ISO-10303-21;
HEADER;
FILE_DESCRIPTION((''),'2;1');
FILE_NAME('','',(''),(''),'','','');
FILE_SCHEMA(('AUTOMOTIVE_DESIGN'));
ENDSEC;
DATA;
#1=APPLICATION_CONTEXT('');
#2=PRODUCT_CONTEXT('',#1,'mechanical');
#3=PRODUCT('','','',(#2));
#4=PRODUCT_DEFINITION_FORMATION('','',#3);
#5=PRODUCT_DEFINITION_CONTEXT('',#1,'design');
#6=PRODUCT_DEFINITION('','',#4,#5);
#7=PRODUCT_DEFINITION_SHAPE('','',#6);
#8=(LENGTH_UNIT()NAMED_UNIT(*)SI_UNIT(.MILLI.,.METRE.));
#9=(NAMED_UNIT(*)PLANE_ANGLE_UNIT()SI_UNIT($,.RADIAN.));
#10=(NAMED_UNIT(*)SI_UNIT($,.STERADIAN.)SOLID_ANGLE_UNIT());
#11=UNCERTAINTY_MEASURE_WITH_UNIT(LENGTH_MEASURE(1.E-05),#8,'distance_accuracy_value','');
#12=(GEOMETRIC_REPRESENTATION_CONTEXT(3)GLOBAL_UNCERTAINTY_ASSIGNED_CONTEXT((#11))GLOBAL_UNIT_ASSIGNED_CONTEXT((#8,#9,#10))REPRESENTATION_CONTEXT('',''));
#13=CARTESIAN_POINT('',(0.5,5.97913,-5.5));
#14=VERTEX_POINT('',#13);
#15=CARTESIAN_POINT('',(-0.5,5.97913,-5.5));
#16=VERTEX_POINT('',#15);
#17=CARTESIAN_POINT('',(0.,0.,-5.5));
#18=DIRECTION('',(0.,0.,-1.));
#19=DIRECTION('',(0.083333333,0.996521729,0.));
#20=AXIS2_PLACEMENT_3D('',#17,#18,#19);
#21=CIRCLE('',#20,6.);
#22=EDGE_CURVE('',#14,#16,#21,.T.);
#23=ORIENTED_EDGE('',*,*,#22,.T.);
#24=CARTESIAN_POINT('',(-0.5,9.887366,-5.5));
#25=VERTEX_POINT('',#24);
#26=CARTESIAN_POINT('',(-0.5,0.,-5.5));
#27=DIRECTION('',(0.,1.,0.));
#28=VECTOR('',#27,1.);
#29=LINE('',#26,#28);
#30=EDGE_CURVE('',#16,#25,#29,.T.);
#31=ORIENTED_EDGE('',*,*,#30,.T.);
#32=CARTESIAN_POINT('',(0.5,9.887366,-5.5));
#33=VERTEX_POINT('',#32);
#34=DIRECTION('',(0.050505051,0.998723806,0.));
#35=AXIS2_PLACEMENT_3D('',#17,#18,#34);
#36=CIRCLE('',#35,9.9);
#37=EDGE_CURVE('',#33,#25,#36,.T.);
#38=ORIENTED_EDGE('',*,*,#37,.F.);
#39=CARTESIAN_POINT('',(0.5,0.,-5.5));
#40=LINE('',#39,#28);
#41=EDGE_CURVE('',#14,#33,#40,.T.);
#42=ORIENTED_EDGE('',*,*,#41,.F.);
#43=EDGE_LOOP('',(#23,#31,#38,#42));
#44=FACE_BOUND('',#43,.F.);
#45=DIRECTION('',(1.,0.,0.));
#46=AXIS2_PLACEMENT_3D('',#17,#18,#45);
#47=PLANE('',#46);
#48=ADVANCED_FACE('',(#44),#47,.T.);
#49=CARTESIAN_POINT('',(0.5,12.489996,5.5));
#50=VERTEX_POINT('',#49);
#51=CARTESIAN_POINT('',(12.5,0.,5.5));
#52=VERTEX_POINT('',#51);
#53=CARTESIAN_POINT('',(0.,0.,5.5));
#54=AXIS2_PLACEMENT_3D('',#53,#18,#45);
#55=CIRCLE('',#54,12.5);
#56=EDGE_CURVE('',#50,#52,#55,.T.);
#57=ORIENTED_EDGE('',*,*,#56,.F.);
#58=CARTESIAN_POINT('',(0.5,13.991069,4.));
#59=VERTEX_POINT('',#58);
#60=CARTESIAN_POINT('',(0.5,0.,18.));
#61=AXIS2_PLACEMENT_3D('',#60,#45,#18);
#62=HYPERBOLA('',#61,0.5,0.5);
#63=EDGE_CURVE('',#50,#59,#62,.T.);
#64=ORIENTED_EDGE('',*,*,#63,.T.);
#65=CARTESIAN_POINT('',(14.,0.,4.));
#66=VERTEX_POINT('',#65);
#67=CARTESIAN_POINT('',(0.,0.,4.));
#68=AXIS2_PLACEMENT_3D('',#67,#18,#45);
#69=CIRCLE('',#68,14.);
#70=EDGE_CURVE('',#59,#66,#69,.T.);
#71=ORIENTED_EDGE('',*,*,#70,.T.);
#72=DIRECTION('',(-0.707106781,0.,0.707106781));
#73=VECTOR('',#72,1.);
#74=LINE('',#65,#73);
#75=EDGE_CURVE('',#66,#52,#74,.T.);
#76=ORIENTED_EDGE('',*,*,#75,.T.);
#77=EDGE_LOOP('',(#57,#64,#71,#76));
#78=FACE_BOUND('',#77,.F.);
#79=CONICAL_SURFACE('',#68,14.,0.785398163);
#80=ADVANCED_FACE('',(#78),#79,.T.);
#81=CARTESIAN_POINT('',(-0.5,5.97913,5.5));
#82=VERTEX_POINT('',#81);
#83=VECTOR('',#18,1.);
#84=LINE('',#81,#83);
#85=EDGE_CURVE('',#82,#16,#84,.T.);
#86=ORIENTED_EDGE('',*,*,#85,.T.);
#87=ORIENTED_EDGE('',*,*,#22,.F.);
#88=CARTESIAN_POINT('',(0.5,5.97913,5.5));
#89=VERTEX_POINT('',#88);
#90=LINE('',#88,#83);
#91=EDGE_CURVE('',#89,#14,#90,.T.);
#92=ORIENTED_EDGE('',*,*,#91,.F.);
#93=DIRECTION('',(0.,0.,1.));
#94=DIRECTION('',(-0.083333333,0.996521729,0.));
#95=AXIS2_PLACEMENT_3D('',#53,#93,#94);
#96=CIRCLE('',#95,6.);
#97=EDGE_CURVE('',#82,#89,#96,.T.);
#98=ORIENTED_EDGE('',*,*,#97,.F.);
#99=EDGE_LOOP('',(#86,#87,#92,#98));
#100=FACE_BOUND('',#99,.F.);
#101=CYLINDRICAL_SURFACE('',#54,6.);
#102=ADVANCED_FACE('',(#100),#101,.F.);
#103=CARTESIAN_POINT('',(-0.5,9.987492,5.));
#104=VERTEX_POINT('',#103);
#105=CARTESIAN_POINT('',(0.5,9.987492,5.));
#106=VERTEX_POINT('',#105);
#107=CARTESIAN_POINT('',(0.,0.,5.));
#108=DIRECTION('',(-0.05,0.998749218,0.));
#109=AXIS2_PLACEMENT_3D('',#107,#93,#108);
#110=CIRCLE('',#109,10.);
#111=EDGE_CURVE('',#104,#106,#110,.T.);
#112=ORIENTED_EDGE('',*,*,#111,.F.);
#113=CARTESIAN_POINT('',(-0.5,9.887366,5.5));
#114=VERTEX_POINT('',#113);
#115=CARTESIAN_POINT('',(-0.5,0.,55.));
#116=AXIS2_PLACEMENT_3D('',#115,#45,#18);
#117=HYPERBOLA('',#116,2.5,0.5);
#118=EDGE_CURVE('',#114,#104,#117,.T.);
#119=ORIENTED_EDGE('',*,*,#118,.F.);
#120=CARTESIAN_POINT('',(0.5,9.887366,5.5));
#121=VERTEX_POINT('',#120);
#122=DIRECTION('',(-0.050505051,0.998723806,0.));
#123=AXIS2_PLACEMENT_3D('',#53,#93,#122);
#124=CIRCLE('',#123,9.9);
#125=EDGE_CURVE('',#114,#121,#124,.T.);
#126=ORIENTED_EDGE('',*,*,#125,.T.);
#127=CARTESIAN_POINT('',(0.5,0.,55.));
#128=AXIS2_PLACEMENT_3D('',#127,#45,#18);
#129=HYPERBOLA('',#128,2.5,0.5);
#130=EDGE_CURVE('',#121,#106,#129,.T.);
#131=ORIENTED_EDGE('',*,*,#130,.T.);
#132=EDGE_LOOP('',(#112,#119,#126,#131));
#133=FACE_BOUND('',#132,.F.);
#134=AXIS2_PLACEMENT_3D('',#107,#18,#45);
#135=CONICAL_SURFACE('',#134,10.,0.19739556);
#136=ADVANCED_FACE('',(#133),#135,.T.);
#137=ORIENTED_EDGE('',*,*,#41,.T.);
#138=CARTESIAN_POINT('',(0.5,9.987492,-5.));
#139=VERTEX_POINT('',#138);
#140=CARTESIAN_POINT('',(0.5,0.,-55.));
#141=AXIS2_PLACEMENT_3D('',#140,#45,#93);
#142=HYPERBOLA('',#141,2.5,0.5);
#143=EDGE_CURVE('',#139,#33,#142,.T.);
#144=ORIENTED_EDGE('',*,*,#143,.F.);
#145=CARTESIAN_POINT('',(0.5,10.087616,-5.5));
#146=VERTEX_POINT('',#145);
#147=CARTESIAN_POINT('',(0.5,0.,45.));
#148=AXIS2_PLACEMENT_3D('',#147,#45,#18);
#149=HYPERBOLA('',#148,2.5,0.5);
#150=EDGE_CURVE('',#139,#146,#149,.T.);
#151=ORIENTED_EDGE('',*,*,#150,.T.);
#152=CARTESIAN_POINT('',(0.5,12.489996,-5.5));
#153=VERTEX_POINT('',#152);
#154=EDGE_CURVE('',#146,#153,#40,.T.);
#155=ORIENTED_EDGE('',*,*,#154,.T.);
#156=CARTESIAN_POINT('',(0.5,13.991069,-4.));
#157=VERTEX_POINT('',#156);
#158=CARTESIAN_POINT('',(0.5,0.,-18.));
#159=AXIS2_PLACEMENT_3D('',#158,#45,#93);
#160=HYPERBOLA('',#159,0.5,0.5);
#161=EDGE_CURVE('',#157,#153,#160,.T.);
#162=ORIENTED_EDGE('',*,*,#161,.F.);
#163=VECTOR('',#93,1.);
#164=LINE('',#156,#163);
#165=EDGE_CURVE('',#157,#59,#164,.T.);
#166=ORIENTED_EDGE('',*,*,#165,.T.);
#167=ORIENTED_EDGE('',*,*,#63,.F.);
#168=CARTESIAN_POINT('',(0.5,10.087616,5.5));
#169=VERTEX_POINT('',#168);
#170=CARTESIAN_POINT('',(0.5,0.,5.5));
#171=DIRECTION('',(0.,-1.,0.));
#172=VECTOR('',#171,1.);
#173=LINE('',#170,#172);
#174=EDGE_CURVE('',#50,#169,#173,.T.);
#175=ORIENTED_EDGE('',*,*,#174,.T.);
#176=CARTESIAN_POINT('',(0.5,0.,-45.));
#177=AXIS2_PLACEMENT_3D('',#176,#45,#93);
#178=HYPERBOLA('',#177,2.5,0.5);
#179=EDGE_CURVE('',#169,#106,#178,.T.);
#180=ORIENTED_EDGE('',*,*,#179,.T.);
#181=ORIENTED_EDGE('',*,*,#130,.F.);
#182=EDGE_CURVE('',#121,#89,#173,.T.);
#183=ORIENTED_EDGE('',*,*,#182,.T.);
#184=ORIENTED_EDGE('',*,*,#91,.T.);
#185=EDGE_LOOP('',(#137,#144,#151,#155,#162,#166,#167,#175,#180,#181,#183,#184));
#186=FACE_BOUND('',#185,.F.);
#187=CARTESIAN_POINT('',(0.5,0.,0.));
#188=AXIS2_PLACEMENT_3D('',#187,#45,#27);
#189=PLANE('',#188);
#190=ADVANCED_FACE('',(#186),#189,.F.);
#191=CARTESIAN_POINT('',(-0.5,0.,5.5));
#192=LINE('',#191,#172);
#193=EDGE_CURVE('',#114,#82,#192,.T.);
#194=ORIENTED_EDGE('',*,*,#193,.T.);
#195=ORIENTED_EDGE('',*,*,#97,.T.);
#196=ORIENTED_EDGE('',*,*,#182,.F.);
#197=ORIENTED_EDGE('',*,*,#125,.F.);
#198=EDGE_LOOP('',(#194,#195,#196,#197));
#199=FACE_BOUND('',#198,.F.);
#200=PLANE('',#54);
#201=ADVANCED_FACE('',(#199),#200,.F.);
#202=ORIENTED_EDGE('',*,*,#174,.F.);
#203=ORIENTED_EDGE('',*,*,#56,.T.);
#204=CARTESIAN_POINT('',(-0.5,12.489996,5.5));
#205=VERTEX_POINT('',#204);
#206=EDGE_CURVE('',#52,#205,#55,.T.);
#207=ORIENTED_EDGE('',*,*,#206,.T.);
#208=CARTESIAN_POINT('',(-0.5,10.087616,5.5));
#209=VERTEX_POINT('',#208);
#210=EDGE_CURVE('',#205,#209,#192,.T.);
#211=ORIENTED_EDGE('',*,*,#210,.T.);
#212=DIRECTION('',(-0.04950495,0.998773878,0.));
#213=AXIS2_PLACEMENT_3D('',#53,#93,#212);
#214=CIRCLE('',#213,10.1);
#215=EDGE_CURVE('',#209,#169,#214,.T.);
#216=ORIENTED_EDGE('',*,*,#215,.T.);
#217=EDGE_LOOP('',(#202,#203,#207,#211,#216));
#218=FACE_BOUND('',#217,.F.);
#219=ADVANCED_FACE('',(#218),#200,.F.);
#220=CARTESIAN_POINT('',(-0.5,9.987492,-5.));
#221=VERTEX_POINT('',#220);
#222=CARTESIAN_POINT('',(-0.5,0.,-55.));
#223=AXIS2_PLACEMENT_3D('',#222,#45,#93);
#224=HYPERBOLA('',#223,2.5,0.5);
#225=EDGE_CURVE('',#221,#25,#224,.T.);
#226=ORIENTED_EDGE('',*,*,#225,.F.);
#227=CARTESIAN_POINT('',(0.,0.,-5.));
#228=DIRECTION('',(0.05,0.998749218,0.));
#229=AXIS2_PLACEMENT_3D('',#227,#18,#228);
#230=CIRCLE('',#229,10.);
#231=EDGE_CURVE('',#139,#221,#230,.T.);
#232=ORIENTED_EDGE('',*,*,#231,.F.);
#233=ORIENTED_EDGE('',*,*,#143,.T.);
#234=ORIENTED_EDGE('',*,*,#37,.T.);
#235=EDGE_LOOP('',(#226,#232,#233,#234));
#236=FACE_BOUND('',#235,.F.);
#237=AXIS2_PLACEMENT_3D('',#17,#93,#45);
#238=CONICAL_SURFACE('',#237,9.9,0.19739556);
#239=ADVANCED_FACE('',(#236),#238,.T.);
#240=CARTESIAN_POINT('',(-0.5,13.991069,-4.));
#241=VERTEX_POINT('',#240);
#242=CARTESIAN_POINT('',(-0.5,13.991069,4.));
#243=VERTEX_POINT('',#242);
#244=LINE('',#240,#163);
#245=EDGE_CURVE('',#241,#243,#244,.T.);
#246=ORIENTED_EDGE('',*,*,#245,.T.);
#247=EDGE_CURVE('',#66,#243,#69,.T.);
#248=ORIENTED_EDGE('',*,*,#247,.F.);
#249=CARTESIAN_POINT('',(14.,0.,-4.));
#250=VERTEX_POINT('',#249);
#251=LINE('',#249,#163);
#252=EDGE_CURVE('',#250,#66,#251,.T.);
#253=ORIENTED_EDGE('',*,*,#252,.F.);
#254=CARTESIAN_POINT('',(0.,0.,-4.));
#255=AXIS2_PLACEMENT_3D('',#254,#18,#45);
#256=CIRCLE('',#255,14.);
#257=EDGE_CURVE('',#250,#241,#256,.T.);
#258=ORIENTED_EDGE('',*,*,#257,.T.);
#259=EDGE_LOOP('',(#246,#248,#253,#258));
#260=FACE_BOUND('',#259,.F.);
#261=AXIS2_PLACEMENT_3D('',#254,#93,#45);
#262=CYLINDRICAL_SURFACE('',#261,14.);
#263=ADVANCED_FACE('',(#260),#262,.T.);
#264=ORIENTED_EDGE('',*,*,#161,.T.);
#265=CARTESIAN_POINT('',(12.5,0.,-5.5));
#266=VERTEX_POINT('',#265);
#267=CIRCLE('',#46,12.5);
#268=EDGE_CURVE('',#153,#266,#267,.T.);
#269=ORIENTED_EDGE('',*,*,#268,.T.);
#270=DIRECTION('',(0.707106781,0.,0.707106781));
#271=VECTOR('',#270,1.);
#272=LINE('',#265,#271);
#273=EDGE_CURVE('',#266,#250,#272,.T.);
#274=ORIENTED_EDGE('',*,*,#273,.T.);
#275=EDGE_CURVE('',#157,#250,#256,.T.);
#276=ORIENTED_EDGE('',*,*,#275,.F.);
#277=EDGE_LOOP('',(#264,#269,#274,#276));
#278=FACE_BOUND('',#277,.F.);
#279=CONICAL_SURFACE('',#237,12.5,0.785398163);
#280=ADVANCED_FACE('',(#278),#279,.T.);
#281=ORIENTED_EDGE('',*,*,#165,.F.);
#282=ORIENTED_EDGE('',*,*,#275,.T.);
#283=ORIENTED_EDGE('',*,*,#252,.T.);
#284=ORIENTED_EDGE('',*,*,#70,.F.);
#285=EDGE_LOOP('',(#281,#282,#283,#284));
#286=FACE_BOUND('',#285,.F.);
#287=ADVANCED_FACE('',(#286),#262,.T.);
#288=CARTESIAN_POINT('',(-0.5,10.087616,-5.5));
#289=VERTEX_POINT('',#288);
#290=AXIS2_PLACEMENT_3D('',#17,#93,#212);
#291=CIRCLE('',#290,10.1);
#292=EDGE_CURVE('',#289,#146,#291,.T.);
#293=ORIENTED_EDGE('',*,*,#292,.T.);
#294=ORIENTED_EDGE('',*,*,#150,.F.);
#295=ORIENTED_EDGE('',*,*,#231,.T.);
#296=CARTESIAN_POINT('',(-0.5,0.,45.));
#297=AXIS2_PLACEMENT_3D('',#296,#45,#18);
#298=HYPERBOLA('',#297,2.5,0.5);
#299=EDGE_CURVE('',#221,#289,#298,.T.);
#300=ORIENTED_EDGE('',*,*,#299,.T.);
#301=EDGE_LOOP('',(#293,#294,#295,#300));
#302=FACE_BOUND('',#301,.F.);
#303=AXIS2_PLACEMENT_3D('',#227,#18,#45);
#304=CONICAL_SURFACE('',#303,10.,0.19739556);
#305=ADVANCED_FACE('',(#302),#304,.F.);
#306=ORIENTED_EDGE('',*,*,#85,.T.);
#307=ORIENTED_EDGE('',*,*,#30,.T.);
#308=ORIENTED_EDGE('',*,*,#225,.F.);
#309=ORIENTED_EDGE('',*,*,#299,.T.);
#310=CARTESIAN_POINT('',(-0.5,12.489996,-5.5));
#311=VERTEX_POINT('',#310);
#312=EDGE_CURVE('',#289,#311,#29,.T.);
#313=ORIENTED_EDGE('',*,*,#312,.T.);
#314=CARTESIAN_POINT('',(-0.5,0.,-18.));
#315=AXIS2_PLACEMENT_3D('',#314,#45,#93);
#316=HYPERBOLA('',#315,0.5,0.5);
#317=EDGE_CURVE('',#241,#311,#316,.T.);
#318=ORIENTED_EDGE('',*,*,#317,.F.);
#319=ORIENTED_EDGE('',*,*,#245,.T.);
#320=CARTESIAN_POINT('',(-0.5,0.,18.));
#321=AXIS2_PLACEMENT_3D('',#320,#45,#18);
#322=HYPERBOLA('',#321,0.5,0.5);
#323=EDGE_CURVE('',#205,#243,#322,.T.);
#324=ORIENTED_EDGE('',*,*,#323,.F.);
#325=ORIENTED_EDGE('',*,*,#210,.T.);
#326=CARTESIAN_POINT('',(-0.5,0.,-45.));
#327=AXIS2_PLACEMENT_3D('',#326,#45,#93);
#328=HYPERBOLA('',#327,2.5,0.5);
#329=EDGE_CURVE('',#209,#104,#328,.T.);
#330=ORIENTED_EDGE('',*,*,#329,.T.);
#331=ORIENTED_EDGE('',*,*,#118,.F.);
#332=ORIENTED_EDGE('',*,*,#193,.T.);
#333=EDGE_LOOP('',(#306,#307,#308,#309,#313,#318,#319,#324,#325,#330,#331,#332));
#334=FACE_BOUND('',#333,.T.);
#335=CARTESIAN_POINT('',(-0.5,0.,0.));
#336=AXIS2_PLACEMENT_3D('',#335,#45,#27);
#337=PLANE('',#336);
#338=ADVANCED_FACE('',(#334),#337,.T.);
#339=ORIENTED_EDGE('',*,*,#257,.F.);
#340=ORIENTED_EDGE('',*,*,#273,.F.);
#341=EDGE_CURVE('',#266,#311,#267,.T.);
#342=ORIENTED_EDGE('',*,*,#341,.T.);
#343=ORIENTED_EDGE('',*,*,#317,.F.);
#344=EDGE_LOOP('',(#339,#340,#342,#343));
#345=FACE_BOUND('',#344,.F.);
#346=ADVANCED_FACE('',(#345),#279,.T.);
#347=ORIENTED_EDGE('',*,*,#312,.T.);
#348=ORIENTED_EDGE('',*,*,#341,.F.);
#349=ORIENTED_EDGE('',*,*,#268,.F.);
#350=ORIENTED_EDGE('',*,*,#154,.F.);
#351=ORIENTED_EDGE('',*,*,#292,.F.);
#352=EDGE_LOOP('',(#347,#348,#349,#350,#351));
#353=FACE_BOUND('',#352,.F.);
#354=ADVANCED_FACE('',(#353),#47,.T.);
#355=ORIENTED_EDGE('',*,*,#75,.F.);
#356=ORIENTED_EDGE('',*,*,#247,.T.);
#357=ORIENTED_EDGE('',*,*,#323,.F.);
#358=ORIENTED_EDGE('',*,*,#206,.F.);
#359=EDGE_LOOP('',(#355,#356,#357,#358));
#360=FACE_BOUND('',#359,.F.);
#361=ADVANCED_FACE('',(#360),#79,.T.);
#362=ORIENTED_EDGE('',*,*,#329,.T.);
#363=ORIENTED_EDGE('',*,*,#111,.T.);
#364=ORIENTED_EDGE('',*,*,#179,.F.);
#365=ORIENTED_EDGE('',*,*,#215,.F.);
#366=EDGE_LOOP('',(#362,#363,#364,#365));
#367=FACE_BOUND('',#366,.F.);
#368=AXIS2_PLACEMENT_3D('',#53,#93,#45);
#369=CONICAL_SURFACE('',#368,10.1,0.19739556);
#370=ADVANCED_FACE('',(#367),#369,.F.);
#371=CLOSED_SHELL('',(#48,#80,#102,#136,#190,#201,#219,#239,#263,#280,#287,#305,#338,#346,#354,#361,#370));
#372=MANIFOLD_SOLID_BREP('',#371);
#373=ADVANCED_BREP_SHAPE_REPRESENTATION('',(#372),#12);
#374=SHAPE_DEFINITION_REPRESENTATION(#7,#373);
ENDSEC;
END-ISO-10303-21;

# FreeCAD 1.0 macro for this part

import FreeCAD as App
import Part
import Sketcher
from FreeCAD import Vector
Q = App.Units.Quantity


def add_polygon(sketch, points):
    """Adds a closed chain of lines whose ends are joined by coincident constraints."""
    first, n = sketch.GeometryCount, len(points)
    for a, b in zip(points, points[1:] + points[:1]):
        sketch.addGeometry(Part.LineSegment(App.Vector(*a, 0), App.Vector(*b, 0)), False)
    for i in range(n):
        sketch.addConstraint(Sketcher.Constraint("Coincident", first + i, 2, first + (i + 1) % n, 1))

doc = App.newDocument("Part")
params = doc.addObject("Spreadsheet::Sheet", "Params")
for row, (alias, value) in enumerate([
    ("sketch1_height", "11 mm"),
    ("sketch1_height2", "8 mm"),
    ("sketch1_width", "3.9 mm"),
    ("sketch1_width2", "2.4 mm"),
    ("revolution_angle", "360 deg"),
    ("sketch2_width", "1 mm"),
    ("sketch2_height", "14 mm"),
    ("pocket1_length", "30 mm"),
], start=1):
    params.set(f"A{row}", alias)
    params.set(f"B{row}", "=" + value)
    params.setAlias(f"B{row}", alias)

body = doc.addObject("PartDesign::Body", "Body")

sketch1 = body.newObject("Sketcher::SketchObject", "Sketch")
sketch1.AttachmentSupport = (doc.getObject("YZ_Plane"), [""])
sketch1.MapMode = "FlatFace"
add_polygon(sketch1, [(6, 5.5), (6, -5.5), (9.9, -5.5), (10, -5), (10.1, -5.5), (12.5, -5.5), (14, -4), (14, 4), (12.5, 5.5), (10.1, 5.5), (10, 5), (9.9, 5.5)])
sketch1.addConstraint(Sketcher.Constraint("Vertical", 0))
sketch1.addConstraint(Sketcher.Constraint("Horizontal", 1))
sketch1.addConstraint(Sketcher.Constraint("Horizontal", 4))
sketch1.addConstraint(Sketcher.Constraint("Vertical", 6))
sketch1.addConstraint(Sketcher.Constraint("Horizontal", 8))
sketch1.addConstraint(Sketcher.Constraint("Horizontal", 11))
sketch1.addConstraint(Sketcher.Constraint("Symmetric", 4, 2, 7, 2, -1))
sketch1.addConstraint(Sketcher.Constraint("Symmetric", 2, 2, 9, 2, -1))
sketch1.addConstraint(Sketcher.Constraint("Symmetric", 1, 2, 10, 2, -1))
sketch1.addConstraint(Sketcher.Constraint("Perpendicular", 5, 7))
sketch1.addConstraint(Sketcher.Constraint("Parallel", 2, 9))
sketch1.addConstraint(Sketcher.Constraint("Parallel", 3, 10))
sketch1.addConstraint(Sketcher.Constraint("Horizontal", 1, 2, 3, 2))
sketch1.addConstraint(Sketcher.Constraint("Equal", 5, 7))
sketch1.addConstraint(Sketcher.Constraint("DistanceY", 0, 2, 0, 1, Q("11 mm")))
sketch1.addConstraint(Sketcher.Constraint("DistanceY", 6, 1, 6, 2, Q("8 mm")))
sketch1.addConstraint(Sketcher.Constraint("DistanceX", 1, 1, 1, 2, Q("3.9 mm")))
sketch1.addConstraint(Sketcher.Constraint("DistanceX", 4, 1, 4, 2, Q("2.4 mm")))
sketch1.addConstraint(Sketcher.Constraint("DistanceX", -1, 1, 0, 2, Q("6 mm")))
sketch1.addConstraint(Sketcher.Constraint("DistanceX", -1, 1, 2, 2, Q("10 mm")))
sketch1.addConstraint(Sketcher.Constraint("DistanceY", 2, 2, -1, 1, Q("5 mm")))
sketch1.setExpression("Constraints[26]", "Params.sketch1_height")
sketch1.setExpression("Constraints[27]", "Params.sketch1_height2")
sketch1.setExpression("Constraints[28]", "Params.sketch1_width")
sketch1.setExpression("Constraints[29]", "Params.sketch1_width2")
revolution = body.newObject("PartDesign::Revolution", "Revolution")
revolution.Profile = sketch1
revolution.ReferenceAxis = (sketch1, ["V_Axis"])
revolution.setExpression("Angle", "Params.revolution_angle")

sketch2 = body.newObject("Sketcher::SketchObject", "Sketch001")
sketch2.AttachmentSupport = (doc.getObject("XY_Plane"), [""])
sketch2.MapMode = "FlatFace"
add_polygon(sketch2, [(-0.5, 14), (-0.5, 0), (0.5, 0), (0.5, 14)])
sketch2.addConstraint(Sketcher.Constraint("Vertical", 0))
sketch2.addConstraint(Sketcher.Constraint("Horizontal", 1))
sketch2.addConstraint(Sketcher.Constraint("Vertical", 2))
sketch2.addConstraint(Sketcher.Constraint("Horizontal", 3))
sketch2.addConstraint(Sketcher.Constraint("Symmetric", 0, 2, 1, 2, -1, 1))
sketch2.addConstraint(Sketcher.Constraint("DistanceX", 1, 1, 1, 2, Q("1 mm")))
sketch2.addConstraint(Sketcher.Constraint("DistanceY", 0, 2, 0, 1, Q("14 mm")))
sketch2.setExpression("Constraints[9]", "Params.sketch2_width")
sketch2.setExpression("Constraints[10]", "Params.sketch2_height")
pocket1 = body.newObject("PartDesign::Pocket", "Pocket")
pocket1.Profile = sketch2
pocket1.setExpression("Length", "Params.pocket1_length")
pocket1.Midplane = True

doc.recompute()
